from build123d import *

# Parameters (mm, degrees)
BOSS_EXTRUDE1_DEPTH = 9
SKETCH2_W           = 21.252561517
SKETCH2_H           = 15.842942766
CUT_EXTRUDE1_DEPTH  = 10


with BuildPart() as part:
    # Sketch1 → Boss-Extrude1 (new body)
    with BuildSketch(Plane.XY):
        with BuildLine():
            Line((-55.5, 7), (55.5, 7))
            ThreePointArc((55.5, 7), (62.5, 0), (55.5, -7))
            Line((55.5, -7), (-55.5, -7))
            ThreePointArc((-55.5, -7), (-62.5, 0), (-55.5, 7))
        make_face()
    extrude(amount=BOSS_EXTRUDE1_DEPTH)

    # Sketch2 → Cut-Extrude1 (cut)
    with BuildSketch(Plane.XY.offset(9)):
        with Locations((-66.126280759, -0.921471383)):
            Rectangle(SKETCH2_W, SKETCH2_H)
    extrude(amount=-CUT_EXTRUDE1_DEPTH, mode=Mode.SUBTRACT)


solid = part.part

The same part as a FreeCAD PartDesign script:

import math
import FreeCAD as App
import Part
import Sketcher
Q = App.Units.Quantity


def add_polygon(sketch, points):
    """Adds a closed chain of lines whose ends are joined by coincident constraints."""
    first, n = sketch.GeometryCount, len(points)
    for a, b in zip(points, points[1:] + points[:1]):
        sketch.addGeometry(Part.LineSegment(App.Vector(*a, 0), App.Vector(*b, 0)), False)
    for i in range(n):
        sketch.addConstraint(Sketcher.Constraint("Coincident", first + i, 2, first + (i + 1) % n, 1))

doc = App.newDocument("Part")
body = doc.addObject("PartDesign::Body", "Body")

# Sketch on XY plane
sketch1 = body.newObject("Sketcher::SketchObject", "Sketch")
sketch1.AttachmentSupport = (doc.getObject("XY_Plane"), [""])
sketch1.MapMode = "FlatFace"
sketch1.addGeometry([
    Part.LineSegment(App.Vector(55.5, 7, 0), App.Vector(-55.5, 7, 0)),
    Part.ArcOfCircle(Part.Circle(App.Vector(-55.5, 0, 0), App.Vector(0, 0, 1), 7), math.radians(90), math.radians(270)),
    Part.LineSegment(App.Vector(-55.5, -7, 0), App.Vector(55.5, -7, 0)),
    Part.ArcOfCircle(Part.Circle(App.Vector(55.5, 0, 0), App.Vector(0, 0, 1), 7), math.radians(-90), math.radians(90)),
], False)
sketch1.addConstraint([
    Sketcher.Constraint("Tangent", 0, 2, 1, 1),
    Sketcher.Constraint("Tangent", 1, 2, 2, 1),
    Sketcher.Constraint("Tangent", 2, 2, 3, 1),
    Sketcher.Constraint("Tangent", 3, 2, 0, 1),
    Sketcher.Constraint("Horizontal", 0),
    Sketcher.Constraint("Horizontal", 2),
    Sketcher.Constraint("Symmetric", 1, 3, 3, 3, -1, 1),
    Sketcher.Constraint("Radius", 1, Q("7 mm")),
    Sketcher.Constraint("DistanceX", 0, 2, 0, 1, Q("111 mm")),
])
pad1 = body.newObject("PartDesign::Pad", "Pad")
pad1.Profile = sketch1
pad1.Length = 9

# Sketch on XY plane
sketch2 = body.newObject("Sketcher::SketchObject", "Sketch001")
sketch2.AttachmentSupport = (doc.getObject("XY_Plane"), [""])
sketch2.MapMode = "FlatFace"
sketch2.AttachmentOffset = App.Placement(App.Vector(0, 0, 9), App.Rotation())
add_polygon(sketch2, [(-76.752562, 7), (-76.752562, -8.842943), (-55.5, -8.842943), (-55.5, 7)])  # lines 0-3
sketch2.addConstraint([
    Sketcher.Constraint("Vertical", 0),
    Sketcher.Constraint("Horizontal", 1),
    Sketcher.Constraint("Vertical", 2),
    Sketcher.Constraint("Horizontal", 3),
    Sketcher.Constraint("DistanceY", -1, 1, 2, 2, Q("7 mm")),
    Sketcher.Constraint("DistanceX", 1, 2, -1, 1, Q("55.5 mm")),
    Sketcher.Constraint("DistanceX", 1, 1, 1, 2, Q("21.252562 mm")),
    Sketcher.Constraint("DistanceY", 0, 2, 0, 1, Q("15.842943 mm")),
])
pocket1 = body.newObject("PartDesign::Pocket", "Pocket")
pocket1.Profile = sketch2
pocket1.Length = 10

doc.recompute()
